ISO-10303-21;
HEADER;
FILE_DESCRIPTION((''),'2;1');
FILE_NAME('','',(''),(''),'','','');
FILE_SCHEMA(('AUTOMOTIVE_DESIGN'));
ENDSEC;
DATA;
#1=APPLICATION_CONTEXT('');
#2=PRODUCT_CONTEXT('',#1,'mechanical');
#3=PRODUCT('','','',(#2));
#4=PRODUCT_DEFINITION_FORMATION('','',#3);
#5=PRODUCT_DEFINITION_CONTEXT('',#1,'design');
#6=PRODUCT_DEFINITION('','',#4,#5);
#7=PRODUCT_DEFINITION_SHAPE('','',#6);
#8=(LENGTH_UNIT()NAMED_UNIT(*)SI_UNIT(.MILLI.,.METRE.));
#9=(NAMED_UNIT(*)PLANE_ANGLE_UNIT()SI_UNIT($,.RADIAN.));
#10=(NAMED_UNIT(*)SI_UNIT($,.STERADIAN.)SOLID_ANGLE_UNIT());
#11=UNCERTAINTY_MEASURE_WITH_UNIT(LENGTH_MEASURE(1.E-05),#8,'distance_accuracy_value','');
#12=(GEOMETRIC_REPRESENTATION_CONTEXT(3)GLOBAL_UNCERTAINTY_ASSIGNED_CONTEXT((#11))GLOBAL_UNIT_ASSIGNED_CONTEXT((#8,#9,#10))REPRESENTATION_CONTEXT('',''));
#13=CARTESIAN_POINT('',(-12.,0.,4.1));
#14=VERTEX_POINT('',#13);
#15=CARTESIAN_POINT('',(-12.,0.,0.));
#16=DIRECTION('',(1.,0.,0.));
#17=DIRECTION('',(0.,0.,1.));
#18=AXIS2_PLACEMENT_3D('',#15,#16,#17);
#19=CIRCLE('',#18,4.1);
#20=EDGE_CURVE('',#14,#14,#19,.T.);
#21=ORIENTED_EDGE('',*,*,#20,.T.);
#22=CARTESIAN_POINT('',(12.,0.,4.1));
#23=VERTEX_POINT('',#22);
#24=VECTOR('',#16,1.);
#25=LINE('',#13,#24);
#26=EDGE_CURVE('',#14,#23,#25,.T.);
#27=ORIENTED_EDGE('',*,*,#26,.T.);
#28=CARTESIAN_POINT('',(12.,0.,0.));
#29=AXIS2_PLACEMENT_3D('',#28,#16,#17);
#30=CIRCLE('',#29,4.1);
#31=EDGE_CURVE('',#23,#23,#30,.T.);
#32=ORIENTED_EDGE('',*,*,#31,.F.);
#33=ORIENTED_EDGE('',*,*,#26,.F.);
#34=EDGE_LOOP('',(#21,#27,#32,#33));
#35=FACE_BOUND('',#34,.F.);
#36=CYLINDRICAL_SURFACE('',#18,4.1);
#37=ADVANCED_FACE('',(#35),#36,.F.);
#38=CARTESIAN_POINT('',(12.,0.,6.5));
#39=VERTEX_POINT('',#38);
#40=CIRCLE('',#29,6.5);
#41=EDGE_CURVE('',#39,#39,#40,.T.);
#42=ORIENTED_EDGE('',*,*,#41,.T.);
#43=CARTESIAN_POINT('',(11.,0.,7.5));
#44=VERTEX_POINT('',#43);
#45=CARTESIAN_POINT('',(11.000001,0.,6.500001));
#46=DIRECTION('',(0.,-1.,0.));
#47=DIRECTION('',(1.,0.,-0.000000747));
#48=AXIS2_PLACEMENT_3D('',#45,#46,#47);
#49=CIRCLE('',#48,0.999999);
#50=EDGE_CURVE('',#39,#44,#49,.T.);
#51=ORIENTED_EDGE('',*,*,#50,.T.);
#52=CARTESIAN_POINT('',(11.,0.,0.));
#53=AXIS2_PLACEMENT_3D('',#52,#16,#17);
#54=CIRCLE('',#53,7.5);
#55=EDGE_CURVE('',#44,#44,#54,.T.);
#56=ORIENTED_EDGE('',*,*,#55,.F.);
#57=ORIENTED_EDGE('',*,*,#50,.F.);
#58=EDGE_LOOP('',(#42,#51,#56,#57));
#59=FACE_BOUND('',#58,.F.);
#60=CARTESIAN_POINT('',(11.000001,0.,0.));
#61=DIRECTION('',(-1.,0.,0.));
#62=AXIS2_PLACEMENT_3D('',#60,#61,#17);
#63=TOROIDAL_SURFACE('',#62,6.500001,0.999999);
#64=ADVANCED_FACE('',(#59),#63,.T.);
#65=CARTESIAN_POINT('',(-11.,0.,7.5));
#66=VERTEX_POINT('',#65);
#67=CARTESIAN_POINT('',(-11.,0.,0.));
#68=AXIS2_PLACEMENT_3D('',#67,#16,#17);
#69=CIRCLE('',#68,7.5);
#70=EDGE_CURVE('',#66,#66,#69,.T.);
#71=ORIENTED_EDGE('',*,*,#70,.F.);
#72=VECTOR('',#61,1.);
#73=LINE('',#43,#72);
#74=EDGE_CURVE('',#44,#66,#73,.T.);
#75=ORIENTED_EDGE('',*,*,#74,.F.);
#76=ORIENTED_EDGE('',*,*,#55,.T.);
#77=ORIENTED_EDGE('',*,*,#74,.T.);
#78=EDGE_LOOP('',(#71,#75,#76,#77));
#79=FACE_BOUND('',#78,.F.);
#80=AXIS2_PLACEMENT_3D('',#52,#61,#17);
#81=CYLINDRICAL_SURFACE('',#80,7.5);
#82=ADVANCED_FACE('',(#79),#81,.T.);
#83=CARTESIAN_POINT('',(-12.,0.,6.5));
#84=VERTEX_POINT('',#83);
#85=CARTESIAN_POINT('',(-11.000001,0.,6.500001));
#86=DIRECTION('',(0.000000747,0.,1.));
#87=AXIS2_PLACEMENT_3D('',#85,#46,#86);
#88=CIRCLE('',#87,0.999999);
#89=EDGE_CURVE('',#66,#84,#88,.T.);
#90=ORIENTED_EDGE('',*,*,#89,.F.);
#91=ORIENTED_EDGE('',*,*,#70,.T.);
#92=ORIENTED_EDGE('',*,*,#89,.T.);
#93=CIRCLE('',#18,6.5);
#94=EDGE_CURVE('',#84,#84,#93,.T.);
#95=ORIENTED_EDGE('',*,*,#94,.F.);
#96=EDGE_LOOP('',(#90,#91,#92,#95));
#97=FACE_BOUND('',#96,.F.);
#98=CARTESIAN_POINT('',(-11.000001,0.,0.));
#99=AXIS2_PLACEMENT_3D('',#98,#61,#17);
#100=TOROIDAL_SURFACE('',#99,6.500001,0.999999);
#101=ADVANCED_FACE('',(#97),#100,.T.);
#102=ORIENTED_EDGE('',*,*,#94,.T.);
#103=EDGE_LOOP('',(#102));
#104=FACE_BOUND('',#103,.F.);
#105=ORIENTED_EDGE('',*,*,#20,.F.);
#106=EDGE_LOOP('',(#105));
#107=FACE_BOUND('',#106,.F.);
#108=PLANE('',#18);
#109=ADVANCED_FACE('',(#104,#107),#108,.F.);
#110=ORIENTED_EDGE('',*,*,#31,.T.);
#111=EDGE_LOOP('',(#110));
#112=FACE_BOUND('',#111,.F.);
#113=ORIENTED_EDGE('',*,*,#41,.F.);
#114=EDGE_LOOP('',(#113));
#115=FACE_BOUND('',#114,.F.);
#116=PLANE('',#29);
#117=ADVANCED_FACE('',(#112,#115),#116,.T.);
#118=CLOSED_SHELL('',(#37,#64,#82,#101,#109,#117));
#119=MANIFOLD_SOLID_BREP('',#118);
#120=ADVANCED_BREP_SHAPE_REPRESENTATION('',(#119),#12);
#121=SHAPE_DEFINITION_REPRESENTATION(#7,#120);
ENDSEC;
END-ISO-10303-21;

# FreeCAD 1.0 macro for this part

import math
import FreeCAD as App
import Part
import Sketcher
Q = App.Units.Quantity

doc = App.newDocument("Part")
params = doc.addObject("Spreadsheet::Sheet", "Params")
for row, (alias, value) in enumerate([
    ("sketch1_radius", "0.999999 mm"),
    ("sketch1_width", "22 mm"),
    ("sketch1_height", "2.4 mm"),
    ("revolution_angle", "360 deg"),
], start=1):
    params.set(f"A{row}", alias)
    params.set(f"B{row}", "=" + value)
    params.setAlias(f"B{row}", alias)

body = doc.addObject("PartDesign::Body", "Body")

# Sketch on XZ plane
sketch1 = body.newObject("Sketcher::SketchObject", "Sketch")
sketch1.AttachmentSupport = (doc.getObject("XZ_Plane"), [""])
sketch1.MapMode = "FlatFace"
sketch1.addGeometry(Part.LineSegment(App.Vector(11, 7.5, 0), App.Vector(-11, 7.5, 0)), False)
sketch1.addGeometry(Part.ArcOfCircle(Part.Circle(App.Vector(-11, 6.5, 0), App.Vector(0, 0, 1), 1), math.radians(90), math.radians(180)), False)
sketch1.addGeometry(Part.LineSegment(App.Vector(-12, 6.5, 0), App.Vector(-12, 4.1, 0)), False)
sketch1.addGeometry(Part.LineSegment(App.Vector(-12, 4.1, 0), App.Vector(12, 4.1, 0)), False)
sketch1.addGeometry(Part.LineSegment(App.Vector(12, 4.1, 0), App.Vector(12, 6.5, 0)), False)
sketch1.addGeometry(Part.ArcOfCircle(Part.Circle(App.Vector(11, 6.5, 0), App.Vector(0, 0, 1), 1), math.radians(0), math.radians(90)), False)
sketch1.addConstraint(Sketcher.Constraint("Tangent", 0, 2, 1, 1))
sketch1.addConstraint(Sketcher.Constraint("Tangent", 1, 2, 2, 1))
sketch1.addConstraint(Sketcher.Constraint("Coincident", 2, 2, 3, 1))
sketch1.addConstraint(Sketcher.Constraint("Coincident", 3, 2, 4, 1))
sketch1.addConstraint(Sketcher.Constraint("Tangent", 4, 2, 5, 1))
sketch1.addConstraint(Sketcher.Constraint("Tangent", 5, 2, 0, 1))
sketch1.addConstraint(Sketcher.Constraint("Horizontal", 0))
sketch1.addConstraint(Sketcher.Constraint("Vertical", 2))
sketch1.addConstraint(Sketcher.Constraint("Horizontal", 3))
sketch1.addConstraint(Sketcher.Constraint("Vertical", 4))
sketch1.addConstraint(Sketcher.Constraint("Equal", 1, 5))
sketch1.addConstraint(Sketcher.Constraint("Radius", 1, Q("0.999999 mm")))
sketch1.addConstraint(Sketcher.Constraint("DistanceX", 0, 2, 0, 1, Q("22 mm")))
sketch1.addConstraint(Sketcher.Constraint("DistanceY", 2, 2, 2, 1, Q("2.4 mm")))
sketch1.addConstraint(Sketcher.Constraint("DistanceX", 1, 3, -1, 1, Q("11.000001 mm")))
sketch1.addConstraint(Sketcher.Constraint("DistanceY", -1, 1, 1, 3, Q("6.500001 mm")))
sketch1.setExpression("Constraints[11]", "Params.sketch1_radius")
sketch1.setExpression("Constraints[12]", "Params.sketch1_width")
sketch1.setExpression("Constraints[13]", "Params.sketch1_height")
revolution = body.newObject("PartDesign::Revolution", "Revolution")
revolution.Profile = sketch1
revolution.ReferenceAxis = (sketch1, ["H_Axis"])
revolution.setExpression("Angle", "Params.revolution_angle")

doc.recompute()
